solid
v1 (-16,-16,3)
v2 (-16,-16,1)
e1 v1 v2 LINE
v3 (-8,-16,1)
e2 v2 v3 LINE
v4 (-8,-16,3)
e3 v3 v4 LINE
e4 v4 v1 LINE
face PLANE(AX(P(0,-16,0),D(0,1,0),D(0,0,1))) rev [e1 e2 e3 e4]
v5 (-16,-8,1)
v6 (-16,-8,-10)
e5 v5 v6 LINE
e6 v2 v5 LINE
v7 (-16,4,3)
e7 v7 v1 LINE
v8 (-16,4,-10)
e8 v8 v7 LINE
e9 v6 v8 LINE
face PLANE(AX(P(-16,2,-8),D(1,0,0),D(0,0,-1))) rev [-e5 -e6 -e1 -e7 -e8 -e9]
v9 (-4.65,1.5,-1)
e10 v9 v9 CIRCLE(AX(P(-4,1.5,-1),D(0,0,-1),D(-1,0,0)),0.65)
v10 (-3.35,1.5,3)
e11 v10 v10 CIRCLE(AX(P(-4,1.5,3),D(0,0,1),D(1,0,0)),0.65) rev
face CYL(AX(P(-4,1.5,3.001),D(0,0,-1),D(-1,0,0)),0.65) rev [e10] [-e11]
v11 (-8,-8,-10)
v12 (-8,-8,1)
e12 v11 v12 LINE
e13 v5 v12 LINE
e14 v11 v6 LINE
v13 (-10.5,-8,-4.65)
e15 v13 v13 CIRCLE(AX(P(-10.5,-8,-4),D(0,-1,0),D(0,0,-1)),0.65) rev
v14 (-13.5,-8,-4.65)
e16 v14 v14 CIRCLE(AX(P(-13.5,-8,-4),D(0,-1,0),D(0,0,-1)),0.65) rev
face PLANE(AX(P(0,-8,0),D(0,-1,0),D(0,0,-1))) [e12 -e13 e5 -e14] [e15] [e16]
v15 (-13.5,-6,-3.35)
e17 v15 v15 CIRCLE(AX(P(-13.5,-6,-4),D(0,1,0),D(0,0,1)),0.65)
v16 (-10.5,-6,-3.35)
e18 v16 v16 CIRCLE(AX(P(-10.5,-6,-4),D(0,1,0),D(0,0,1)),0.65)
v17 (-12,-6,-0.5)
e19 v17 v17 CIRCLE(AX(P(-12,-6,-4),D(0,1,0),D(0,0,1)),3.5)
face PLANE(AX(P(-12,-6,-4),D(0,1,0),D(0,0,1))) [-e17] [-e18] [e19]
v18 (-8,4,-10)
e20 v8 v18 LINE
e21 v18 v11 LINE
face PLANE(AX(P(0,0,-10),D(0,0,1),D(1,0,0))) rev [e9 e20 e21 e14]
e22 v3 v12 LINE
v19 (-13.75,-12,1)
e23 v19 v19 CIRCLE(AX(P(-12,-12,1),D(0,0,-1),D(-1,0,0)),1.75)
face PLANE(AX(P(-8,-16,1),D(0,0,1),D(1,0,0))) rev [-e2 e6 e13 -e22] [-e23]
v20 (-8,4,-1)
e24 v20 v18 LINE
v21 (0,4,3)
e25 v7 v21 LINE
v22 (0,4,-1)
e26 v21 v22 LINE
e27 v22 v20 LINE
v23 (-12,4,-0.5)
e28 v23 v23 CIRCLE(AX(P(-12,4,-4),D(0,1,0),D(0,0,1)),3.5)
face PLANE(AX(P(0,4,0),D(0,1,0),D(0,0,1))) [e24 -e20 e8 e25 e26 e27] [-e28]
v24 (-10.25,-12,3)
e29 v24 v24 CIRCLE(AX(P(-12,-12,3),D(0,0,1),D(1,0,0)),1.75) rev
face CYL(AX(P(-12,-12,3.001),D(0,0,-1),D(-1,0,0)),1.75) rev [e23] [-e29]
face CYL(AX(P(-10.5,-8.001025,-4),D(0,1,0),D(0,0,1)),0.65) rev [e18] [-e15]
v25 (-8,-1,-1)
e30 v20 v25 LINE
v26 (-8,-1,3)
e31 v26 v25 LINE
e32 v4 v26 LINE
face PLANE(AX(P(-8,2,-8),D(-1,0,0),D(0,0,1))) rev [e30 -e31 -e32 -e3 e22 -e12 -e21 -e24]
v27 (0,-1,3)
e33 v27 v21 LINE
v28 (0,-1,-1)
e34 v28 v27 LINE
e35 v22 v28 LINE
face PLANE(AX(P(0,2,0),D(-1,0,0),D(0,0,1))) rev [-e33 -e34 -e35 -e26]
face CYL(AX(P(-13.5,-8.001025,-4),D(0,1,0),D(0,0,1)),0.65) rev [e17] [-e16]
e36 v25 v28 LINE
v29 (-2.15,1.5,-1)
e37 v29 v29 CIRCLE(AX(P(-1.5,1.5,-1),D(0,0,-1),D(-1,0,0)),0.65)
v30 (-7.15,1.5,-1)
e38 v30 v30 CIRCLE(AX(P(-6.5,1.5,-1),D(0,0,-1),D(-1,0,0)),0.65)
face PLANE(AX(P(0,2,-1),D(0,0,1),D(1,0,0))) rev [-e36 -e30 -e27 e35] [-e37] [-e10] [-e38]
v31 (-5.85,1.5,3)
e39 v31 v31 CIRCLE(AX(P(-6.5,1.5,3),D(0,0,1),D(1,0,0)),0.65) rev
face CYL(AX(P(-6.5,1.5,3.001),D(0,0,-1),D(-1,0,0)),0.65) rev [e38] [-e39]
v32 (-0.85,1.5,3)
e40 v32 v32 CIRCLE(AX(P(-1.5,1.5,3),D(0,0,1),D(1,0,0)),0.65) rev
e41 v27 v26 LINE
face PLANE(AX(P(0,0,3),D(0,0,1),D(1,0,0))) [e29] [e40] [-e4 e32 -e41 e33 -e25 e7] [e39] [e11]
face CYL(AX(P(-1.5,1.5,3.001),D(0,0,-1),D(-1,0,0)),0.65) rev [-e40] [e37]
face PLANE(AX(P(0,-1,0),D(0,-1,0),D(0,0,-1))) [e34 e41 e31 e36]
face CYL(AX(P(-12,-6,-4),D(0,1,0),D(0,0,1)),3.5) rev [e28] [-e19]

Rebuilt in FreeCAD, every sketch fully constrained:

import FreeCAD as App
import Part
import Sketcher

V = App.Vector

doc = App.newDocument("Part")
body = doc.addObject("PartDesign::Body", "Body")

# Sketch on XZ plane
sketch1 = doc.addObject("Sketcher::SketchObject", "Sketch")
body.addObject(sketch1)
sketch1.AttachmentSupport = (doc.XZ_Plane, [""])
sketch1.MapMode = "FlatFace"
sketch1.addGeometry([
    Part.LineSegment(V(-16, 0, 0), V(0, 0, 0)),  # 0
    Part.LineSegment(V(0, 0, 0), V(0, -1, 0)),  # 1
    Part.LineSegment(V(0, -1, 0), V(-8, -1, 0)),  # 2
    Part.LineSegment(V(-8, -1, 0), V(-8, -8, 0)),  # 3
    Part.LineSegment(V(-8, -8, 0), V(-16, -8, 0)),  # 4
    Part.LineSegment(V(-16, -8, 0), V(-16, 0, 0)),  # 5
], False)
sketch1.addConstraint([
    Sketcher.Constraint("Coincident", 0, 2, 1, 1),
    Sketcher.Constraint("Coincident", 1, 2, 2, 1),
    Sketcher.Constraint("Coincident", 2, 2, 3, 1),
    Sketcher.Constraint("Coincident", 3, 2, 4, 1),
    Sketcher.Constraint("Coincident", 4, 2, 5, 1),
    Sketcher.Constraint("Coincident", 5, 2, 0, 1),
    Sketcher.Constraint("Horizontal", 0),
    Sketcher.Constraint("Vertical", 1),
    Sketcher.Constraint("Horizontal", 2),
    Sketcher.Constraint("Vertical", 3),
    Sketcher.Constraint("Horizontal", 4),
    Sketcher.Constraint("Vertical", 5),
    Sketcher.Constraint("Coincident", 0, 2, -1, 1),
    Sketcher.Constraint("Equal", 2, 4),
    Sketcher.Constraint("Equal", 4, 5),
    Sketcher.Constraint("DistanceX", 0, 1, 0, 2, 16.0),
    Sketcher.Constraint("DistanceY", 1, 2, 1, 1, 1.0),
])
pad1 = doc.addObject("PartDesign::Pad", "Pad")
body.addObject(pad1)
pad1.Profile = sketch1
pad1.Length = 2
pad1.Reversed = True

# Sketch on XZ plane
sketch2 = doc.addObject("Sketcher::SketchObject", "Sketch001")
body.addObject(sketch2)
sketch2.AttachmentSupport = (doc.XZ_Plane, [""])
sketch2.MapMode = "FlatFace"
sketch2.AttachmentOffset = App.Placement(V(0, 0, -2), App.Rotation())
sketch2.addGeometry([
    Part.LineSegment(V(-16, -8, 0), V(-16, 0, 0)),
    Part.LineSegment(V(-16, 0, 0), V(-8, 0, 0)),
    Part.LineSegment(V(-8, 0, 0), V(-8, -8, 0)),
    Part.LineSegment(V(-8, -8, 0), V(-16, -8, 0)),
], False)
sketch2.addConstraint([
    Sketcher.Constraint("Coincident", 0, 2, 1, 1),
    Sketcher.Constraint("Coincident", 1, 2, 2, 1),
    Sketcher.Constraint("Coincident", 2, 2, 3, 1),
    Sketcher.Constraint("Coincident", 3, 2, 0, 1),
    Sketcher.Constraint("Vertical", 0),
    Sketcher.Constraint("Horizontal", 1),
    Sketcher.Constraint("Vertical", 2),
    Sketcher.Constraint("Horizontal", 3),
    Sketcher.Constraint("PointOnObject", 0, 2, -1),
    Sketcher.Constraint("Equal", 3, 0),
    Sketcher.Constraint("DistanceX", 1, 1, 1, 2, 8.0),
    Sketcher.Constraint("DistanceX", 0, 2, -1, 1, 16.0),
])
pad2 = doc.addObject("PartDesign::Pad", "Pad001")
body.addObject(pad2)
pad2.Profile = sketch2
pad2.Length = 2
pad2.Reversed = True

# Sketch on XZ plane
sketch3 = doc.addObject("Sketcher::SketchObject", "Sketch002")
body.addObject(sketch3)
sketch3.AttachmentSupport = (doc.XZ_Plane, [""])
sketch3.MapMode = "FlatFace"
sketch3.addGeometry([
    Part.LineSegment(V(-16, 0, 0), V(-16, -8, 0)),
    Part.LineSegment(V(-16, -8, 0), V(-8, -8, 0)),
    Part.LineSegment(V(-8, -8, 0), V(-8, 0, 0)),
    Part.LineSegment(V(-8, 0, 0), V(-16, 0, 0)),
], False)
sketch3.addConstraint([
    Sketcher.Constraint("Coincident", 0, 2, 1, 1),
    Sketcher.Constraint("Coincident", 1, 2, 2, 1),
    Sketcher.Constraint("Coincident", 2, 2, 3, 1),
    Sketcher.Constraint("Coincident", 3, 2, 0, 1),
    Sketcher.Constraint("Vertical", 0),
    Sketcher.Constraint("Horizontal", 1),
    Sketcher.Constraint("Vertical", 2),
    Sketcher.Constraint("Horizontal", 3),
    Sketcher.Constraint("PointOnObject", 2, 2, -1),
    Sketcher.Constraint("Equal", 3, 0),
    Sketcher.Constraint("DistanceX", 1, 1, 1, 2, 8.0),
    Sketcher.Constraint("DistanceX", 0, 2, -1, 1, 16.0),
])
pad3 = doc.addObject("PartDesign::Pad", "Pad002")
body.addObject(pad3)
pad3.Profile = sketch3
pad3.Length = 8

# Sketch on XZ plane
sketch4 = doc.addObject("Sketcher::SketchObject", "Sketch003")
body.addObject(sketch4)
sketch4.AttachmentSupport = (doc.XZ_Plane, [""])
sketch4.MapMode = "FlatFace"
sketch4.AttachmentOffset = App.Placement(V(0, 0, -4), App.Rotation())
sketch4.addGeometry(Part.Circle(V(-12, -4, 0), V(0, 0, 1), 3.5), False)
sketch4.addConstraint([
    Sketcher.Constraint("Diameter", 0, 7.0),
    Sketcher.Constraint("DistanceX", 0, 3, -1, 1, 12.0),
    Sketcher.Constraint("DistanceY", 0, 3, -1, 1, 4.0),
])
pocket1 = doc.addObject("PartDesign::Pocket", "Pocket")
body.addObject(pocket1)
pocket1.Profile = sketch4
pocket1.Length = 10
pocket1.Reversed = True

# Sketch on XZ plane
sketch5 = doc.addObject("Sketcher::SketchObject", "Sketch004")
body.addObject(sketch5)
sketch5.AttachmentSupport = (doc.XZ_Plane, [""])
sketch5.MapMode = "FlatFace"
sketch5.AttachmentOffset = App.Placement(V(0, 0, 6), App.Rotation())
sketch5.addGeometry(Part.Circle(V(-13.5, -4, 0), V(0, 0, 1), 0.65), False)
sketch5.addConstraint([
    Sketcher.Constraint("Diameter", 0, 1.3),
    Sketcher.Constraint("DistanceY", 0, 3, -1, 1, 4.0),
    Sketcher.Constraint("DistanceX", 0, 3, -1, 1, 13.5),
])
pocket2 = doc.addObject("PartDesign::Pocket", "Pocket001")
body.addObject(pocket2)
pocket2.Profile = sketch5
pocket2.Type = "UpToFirst"
pocket2.Reversed = True

# Sketch on XZ plane
sketch6 = doc.addObject("Sketcher::SketchObject", "Sketch005")
body.addObject(sketch6)
sketch6.AttachmentSupport = (doc.XZ_Plane, [""])
sketch6.MapMode = "FlatFace"
sketch6.AttachmentOffset = App.Placement(V(0, 0, 6), App.Rotation())
sketch6.addGeometry(Part.Circle(V(-10.5, -4, 0), V(0, 0, 1), 0.65), False)
sketch6.addConstraint([
    Sketcher.Constraint("Diameter", 0, 1.3),
    Sketcher.Constraint("DistanceY", 0, 3, -1, 1, 4.0),
    Sketcher.Constraint("DistanceX", 0, 3, -1, 1, 10.5),
])
pocket3 = doc.addObject("PartDesign::Pocket", "Pocket002")
body.addObject(pocket3)
pocket3.Profile = sketch6
pocket3.Type = "UpToFirst"
pocket3.Reversed = True

# Sketch on XY plane
sketch7 = doc.addObject("Sketcher::SketchObject", "Sketch006")
body.addObject(sketch7)
sketch7.AttachmentSupport = (doc.XY_Plane, [""])
sketch7.MapMode = "FlatFace"
sketch7.AttachmentOffset = App.Placement(V(0, 0, -1), App.Rotation())
sketch7.addGeometry(Part.Circle(V(-6.5, 1, 0), V(0, 0, 1), 0.65), False)
sketch7.addConstraint([
    Sketcher.Constraint("Diameter", 0, 1.3),
    Sketcher.Constraint("DistanceY", -1, 1, 0, 3, 1.0),
    Sketcher.Constraint("DistanceX", 0, 3, -1, 1, 6.5),
])
pocket4 = doc.addObject("PartDesign::Pocket", "Pocket003")
body.addObject(pocket4)
pocket4.Profile = sketch7
pocket4.Type = "UpToFirst"
pocket4.Reversed = True

# Sketch on XY plane
sketch8 = doc.addObject("Sketcher::SketchObject", "Sketch007")
body.addObject(sketch8)
sketch8.AttachmentSupport = (doc.XY_Plane, [""])
sketch8.MapMode = "FlatFace"
sketch8.AttachmentOffset = App.Placement(V(0, 0, -1), App.Rotation())
sketch8.addGeometry(Part.Circle(V(-4, 1, 0), V(0, 0, 1), 0.65), False)
sketch8.addConstraint([
    Sketcher.Constraint("Diameter", 0, 1.3),
    Sketcher.Constraint("DistanceX", 0, 3, -1, 1, 4.0),
    Sketcher.Constraint("DistanceY", -1, 1, 0, 3, 1.0),
])
pocket5 = doc.addObject("PartDesign::Pocket", "Pocket004")
body.addObject(pocket5)
pocket5.Profile = sketch8
pocket5.Type = "UpToFirst"
pocket5.Reversed = True

# Sketch on XY plane
sketch9 = doc.addObject("Sketcher::SketchObject", "Sketch008")
body.addObject(sketch9)
sketch9.AttachmentSupport = (doc.XY_Plane, [""])
sketch9.MapMode = "FlatFace"
sketch9.AttachmentOffset = App.Placement(V(0, 0, -1), App.Rotation())
sketch9.addGeometry(Part.Circle(V(-1.5, 1, 0), V(0, 0, 1), 0.65), False)
sketch9.addConstraint([
    Sketcher.Constraint("Diameter", 0, 1.3),
    Sketcher.Constraint("DistanceY", -1, 1, 0, 3, 1.0),
    Sketcher.Constraint("DistanceX", 0, 3, -1, 1, 1.5),
])
pocket6 = doc.addObject("PartDesign::Pocket", "Pocket005")
body.addObject(pocket6)
pocket6.Profile = sketch9
pocket6.Type = "UpToFirst"
pocket6.Reversed = True

# Sketch on XY plane
sketch10 = doc.addObject("Sketcher::SketchObject", "Sketch009")
body.addObject(sketch10)
sketch10.AttachmentSupport = (doc.XY_Plane, [""])
sketch10.MapMode = "FlatFace"
sketch10.addGeometry([
    Part.LineSegment(V(-16, 2, 0), V(-16, -8, 0)),  # 0
    Part.LineSegment(V(-16, -8, 0), V(-8, -8, 0)),  # 1
    Part.LineSegment(V(-8, -8, 0), V(-8, 0, 0)),  # 2
    Part.LineSegment(V(-8, 0, 0), V(0, 0, 0)),  # 3
    Part.LineSegment(V(0, 0, 0), V(0, 2, 0)),  # 4
    Part.LineSegment(V(0, 2, 0), V(-16, 2, 0)),  # 5
    Part.Circle(V(-6.5, 1, 0), V(0, 0, 1), 0.65),  # 6
    Part.Circle(V(-4, 1, 0), V(0, 0, 1), 0.65),  # 7
    Part.Circle(V(-1.5, 1, 0), V(0, 0, 1), 0.65),  # 8
], False)
sketch10.addConstraint([
    Sketcher.Constraint("Coincident", 0, 2, 1, 1),
    Sketcher.Constraint("Coincident", 1, 2, 2, 1),
    Sketcher.Constraint("Coincident", 2, 2, 3, 1),
    Sketcher.Constraint("Coincident", 3, 2, 4, 1),
    Sketcher.Constraint("Coincident", 4, 2, 5, 1),
    Sketcher.Constraint("Coincident", 5, 2, 0, 1),
    Sketcher.Constraint("Vertical", 0),
    Sketcher.Constraint("Horizontal", 1),
    Sketcher.Constraint("Vertical", 2),
    Sketcher.Constraint("Horizontal", 3),
    Sketcher.Constraint("Vertical", 4),
    Sketcher.Constraint("Horizontal", 5),
    Sketcher.Constraint("Coincident", 3, 2, -1, 1),
    Sketcher.Constraint("Equal", 6, 7),
    Sketcher.Constraint("Equal", 7, 8),
    Sketcher.Constraint("Horizontal", 6, 3, 7, 3),
    Sketcher.Constraint("Horizontal", 7, 3, 8, 3),
    Sketcher.Constraint("Equal", 1, 3),
    Sketcher.Constraint("Equal", 3, 2),
    Sketcher.Constraint("Diameter", 6, 1.3),
    Sketcher.Constraint("DistanceX", 1, 1, 1, 2, 8.0),
    Sketcher.Constraint("DistanceY", 0, 2, 0, 1, 10.0),
    Sketcher.Constraint("DistanceY", -1, 1, 6, 3, 1.0),
    Sketcher.Constraint("DistanceX", 7, 3, -1, 1, 4.0),
    Sketcher.Constraint("DistanceX", 6, 3, 8, 3, 5.0),
    Sketcher.Constraint("DistanceX", 6, 3, -1, 1, 6.5),
])
pad4 = doc.addObject("PartDesign::Pad", "Pad003")
body.addObject(pad4)
pad4.Profile = sketch10
pad4.Length = 3

# Sketch on XZ plane
sketch11 = doc.addObject("Sketcher::SketchObject", "Sketch010")
body.addObject(sketch11)
sketch11.AttachmentSupport = (doc.XZ_Plane, [""])
sketch11.MapMode = "FlatFace"
sketch11.AttachmentOffset = App.Placement(V(0, 0, 8), App.Rotation())
sketch11.addGeometry([
    Part.LineSegment(V(-16, 3, 0), V(-16, 1, 0)),
    Part.LineSegment(V(-16, 1, 0), V(-8, 1, 0)),
    Part.LineSegment(V(-8, 1, 0), V(-8, 3, 0)),
    Part.LineSegment(V(-8, 3, 0), V(-16, 3, 0)),
], False)
sketch11.addConstraint([
    Sketcher.Constraint("Coincident", 0, 2, 1, 1),
    Sketcher.Constraint("Coincident", 1, 2, 2, 1),
    Sketcher.Constraint("Coincident", 2, 2, 3, 1),
    Sketcher.Constraint("Coincident", 3, 2, 0, 1),
    Sketcher.Constraint("Vertical", 0),
    Sketcher.Constraint("Horizontal", 1),
    Sketcher.Constraint("Vertical", 2),
    Sketcher.Constraint("Horizontal", 3),
    Sketcher.Constraint("DistanceX", 1, 1, 1, 2, 8.0),
    Sketcher.Constraint("DistanceY", 0, 2, 0, 1, 2.0),
    Sketcher.Constraint("DistanceX", 0, 2, -1, 1, 16.0),
    Sketcher.Constraint("DistanceY", -1, 1, 0, 2, 1.0),
])
pad5 = doc.addObject("PartDesign::Pad", "Pad004")
body.addObject(pad5)
pad5.Profile = sketch11
pad5.Length = 8

# Sketch on XY plane
sketch12 = doc.addObject("Sketcher::SketchObject", "Sketch011")
body.addObject(sketch12)
sketch12.AttachmentSupport = (doc.XY_Plane, [""])
sketch12.MapMode = "FlatFace"
sketch12.AttachmentOffset = App.Placement(V(0, 0, 1), App.Rotation())
sketch12.addGeometry(Part.Circle(V(-12, -12, 0), V(0, 0, 1), 1), False)
sketch12.addConstraint([
    Sketcher.Constraint("Diameter", 0, 2.0),
    Sketcher.Constraint("DistanceX", 0, 3, -1, 1, 12.0),
    Sketcher.Constraint("DistanceY", 0, 3, -1, 1, 12.0),
])
pocket7 = doc.addObject("PartDesign::Pocket", "Pocket006")
body.addObject(pocket7)
pocket7.Profile = sketch12
pocket7.Length = 8
pocket7.Reversed = True

# Sketch on XY plane
sketch13 = doc.addObject("Sketcher::SketchObject", "Sketch012")
body.addObject(sketch13)
sketch13.AttachmentSupport = (doc.XY_Plane, [""])
sketch13.MapMode = "FlatFace"
sketch13.AttachmentOffset = App.Placement(V(0, 0, -8), App.Rotation())
sketch13.addGeometry([
    Part.LineSegment(V(-8, 4, 0), V(-8, -8, 0)),
    Part.LineSegment(V(-8, -8, 0), V(-16, -8, 0)),
    Part.LineSegment(V(-16, -8, 0), V(-16, 4, 0)),
    Part.LineSegment(V(-16, 4, 0), V(-8, 4, 0)),
], False)
sketch13.addConstraint([
    Sketcher.Constraint("Coincident", 0, 2, 1, 1),
    Sketcher.Constraint("Coincident", 1, 2, 2, 1),
    Sketcher.Constraint("Coincident", 2, 2, 3, 1),
    Sketcher.Constraint("Coincident", 3, 2, 0, 1),
    Sketcher.Constraint("Vertical", 0),
    Sketcher.Constraint("Horizontal", 1),
    Sketcher.Constraint("Vertical", 2),
    Sketcher.Constraint("Horizontal", 3),
    Sketcher.Constraint("DistanceX", 1, 2, 1, 1, 8.0),
    Sketcher.Constraint("DistanceY", 0, 2, 0, 1, 12.0),
    Sketcher.Constraint("DistanceX", 0, 2, -1, 1, 8.0),
    Sketcher.Constraint("DistanceY", 0, 2, -1, 1, 8.0),
])
pad6 = doc.addObject("PartDesign::Pad", "Pad005")
body.addObject(pad6)
pad6.Profile = sketch13
pad6.Length = 2
pad6.Reversed = True

# Sketch on XZ plane
sketch14 = doc.addObject("Sketcher::SketchObject", "Sketch013")
body.addObject(sketch14)
sketch14.AttachmentSupport = (doc.XZ_Plane, [""])
sketch14.MapMode = "FlatFace"
sketch14.addGeometry([
    Part.LineSegment(V(-8, 3, 0), V(-8, -1, 0)),
    Part.LineSegment(V(-8, -1, 0), V(0, -1, 0)),
    Part.LineSegment(V(0, -1, 0), V(0, 3, 0)),
    Part.LineSegment(V(0, 3, 0), V(-8, 3, 0)),
], False)
sketch14.addConstraint([
    Sketcher.Constraint("Coincident", 0, 2, 1, 1),
    Sketcher.Constraint("Coincident", 1, 2, 2, 1),
    Sketcher.Constraint("Coincident", 2, 2, 3, 1),
    Sketcher.Constraint("Coincident", 3, 2, 0, 1),
    Sketcher.Constraint("Vertical", 0),
    Sketcher.Constraint("Horizontal", 1),
    Sketcher.Constraint("Vertical", 2),
    Sketcher.Constraint("Horizontal", 3),
    Sketcher.Constraint("PointOnObject", 1, 2, -2),
    Sketcher.Constraint("DistanceX", 1, 1, 1, 2, 8.0),
    Sketcher.Constraint("DistanceY", 0, 2, 0, 1, 4.0),
    Sketcher.Constraint("DistanceY", 0, 2, -1, 1, 1.0),
])
pad7 = doc.addObject("PartDesign::Pad", "Pad006")
body.addObject(pad7)
pad7.Profile = sketch14
pad7.Length = 1

# Sketch on XZ plane
sketch15 = doc.addObject("Sketcher::SketchObject", "Sketch014")
body.addObject(sketch15)
sketch15.AttachmentSupport = (doc.XZ_Plane, [""])
sketch15.MapMode = "FlatFace"
sketch15.AttachmentOffset = App.Placement(V(0, 0, -2), App.Rotation())
sketch15.addGeometry([
    Part.LineSegment(V(-8, -1, 0), V(-8, 0, 0)),  # 0
    Part.LineSegment(V(-8, 0, 0), V(-16, 0, 0)),  # 1
    Part.LineSegment(V(-16, 0, 0), V(-16, 3, 0)),  # 2
    Part.LineSegment(V(-16, 3, 0), V(0, 3, 0)),  # 3
    Part.LineSegment(V(0, 3, 0), V(0, -1, 0)),  # 4
    Part.LineSegment(V(0, -1, 0), V(-8, -1, 0)),  # 5
], False)
sketch15.addConstraint([
    Sketcher.Constraint("Coincident", 0, 2, 1, 1),
    Sketcher.Constraint("Coincident", 1, 2, 2, 1),
    Sketcher.Constraint("Coincident", 2, 2, 3, 1),
    Sketcher.Constraint("Coincident", 3, 2, 4, 1),
    Sketcher.Constraint("Coincident", 4, 2, 5, 1),
    Sketcher.Constraint("Coincident", 5, 2, 0, 1),
    Sketcher.Constraint("Vertical", 0),
    Sketcher.Constraint("Horizontal", 1),
    Sketcher.Constraint("Vertical", 2),
    Sketcher.Constraint("Horizontal", 3),
    Sketcher.Constraint("Vertical", 4),
    Sketcher.Constraint("Horizontal", 5),
    Sketcher.Constraint("PointOnObject", 0, 2, -1),
    Sketcher.Constraint("PointOnObject", 3, 2, -2),
    Sketcher.Constraint("Equal", 1, 5),
    Sketcher.Constraint("DistanceX", 1, 2, 1, 1, 8.0),
    Sketcher.Constraint("DistanceY", 0, 1, 0, 2, 1.0),
    Sketcher.Constraint("DistanceY", 2, 1, 2, 2, 3.0),
])
pad8 = doc.addObject("PartDesign::Pad", "Pad007")
body.addObject(pad8)
pad8.Profile = sketch15
pad8.Length = 2
pad8.Reversed = True

# Sketch on XY plane
sketch16 = doc.addObject("Sketcher::SketchObject", "Sketch015")
body.addObject(sketch16)
sketch16.AttachmentSupport = (doc.XY_Plane, [""])
sketch16.MapMode = "FlatFace"
sketch16.AttachmentOffset = App.Placement(V(0, 0, -1), App.Rotation())
sketch16.addGeometry([
    Part.Circle(V(-1.5, 1, 0), V(0, 0, 1), 0.65),
    Part.Circle(V(-4, 1, 0), V(0, 0, 1), 0.65),
    Part.Circle(V(-6.5, 1, 0), V(0, 0, 1), 0.65),
], False)
sketch16.addConstraint([
    Sketcher.Constraint("Equal", 0, 1),
    Sketcher.Constraint("Equal", 1, 2),
    Sketcher.Constraint("Horizontal", 0, 3, 1, 3),
    Sketcher.Constraint("Horizontal", 1, 3, 2, 3),
    Sketcher.Constraint("Diameter", 0, 1.3),
    Sketcher.Constraint("DistanceY", -1, 1, 0, 3, 1.0),
    Sketcher.Constraint("DistanceX", 1, 3, -1, 1, 4.0),
    Sketcher.Constraint("DistanceX", 2, 3, 0, 3, 5.0),
    Sketcher.Constraint("DistanceX", 0, 3, -1, 1, 1.5),
])
pad9 = doc.addObject("PartDesign::Pad", "Pad008")
body.addObject(pad9)
pad9.Profile = sketch16
pad9.Length = 4

# Sketch on XY plane
sketch17 = doc.addObject("Sketcher::SketchObject", "Sketch016")
body.addObject(sketch17)
sketch17.AttachmentSupport = (doc.XY_Plane, [""])
sketch17.MapMode = "FlatFace"
sketch17.AttachmentOffset = App.Placement(V(0, 0, -1), App.Rotation())
sketch17.addGeometry(Part.Circle(V(-1.5, 1.5, 0), V(0, 0, 1), 0.65), False)
sketch17.addConstraint([
    Sketcher.Constraint("Diameter", 0, 1.3),
    Sketcher.Constraint("DistanceX", 0, 3, -1, 1, 1.5),
    Sketcher.Constraint("DistanceY", -1, 1, 0, 3, 1.5),
])
pocket8 = doc.addObject("PartDesign::Pocket", "Pocket007")
body.addObject(pocket8)
pocket8.Profile = sketch17
pocket8.Type = "UpToFirst"
pocket8.Reversed = True

# Sketch on XY plane
sketch18 = doc.addObject("Sketcher::SketchObject", "Sketch017")
body.addObject(sketch18)
sketch18.AttachmentSupport = (doc.XY_Plane, [""])
sketch18.MapMode = "FlatFace"
sketch18.AttachmentOffset = App.Placement(V(0, 0, -1), App.Rotation())
sketch18.addGeometry(Part.Circle(V(-4, 1.5, 0), V(0, 0, 1), 0.65), False)
sketch18.addConstraint([
    Sketcher.Constraint("Diameter", 0, 1.3),
    Sketcher.Constraint("DistanceX", 0, 3, -1, 1, 4.0),
    Sketcher.Constraint("DistanceY", -1, 1, 0, 3, 1.5),
])
pocket9 = doc.addObject("PartDesign::Pocket", "Pocket008")
body.addObject(pocket9)
pocket9.Profile = sketch18
pocket9.Type = "UpToFirst"
pocket9.Reversed = True

# Sketch on XY plane
sketch19 = doc.addObject("Sketcher::SketchObject", "Sketch018")
body.addObject(sketch19)
sketch19.AttachmentSupport = (doc.XY_Plane, [""])
sketch19.MapMode = "FlatFace"
sketch19.AttachmentOffset = App.Placement(V(0, 0, -1), App.Rotation())
sketch19.addGeometry(Part.Circle(V(-6.5, 1.5, 0), V(0, 0, 1), 0.65), False)
sketch19.addConstraint([
    Sketcher.Constraint("Diameter", 0, 1.3),
    Sketcher.Constraint("DistanceX", 0, 3, -1, 1, 6.5),
    Sketcher.Constraint("DistanceY", -1, 1, 0, 3, 1.5),
])
pocket10 = doc.addObject("PartDesign::Pocket", "Pocket009")
body.addObject(pocket10)
pocket10.Profile = sketch19
pocket10.Type = "UpToFirst"
pocket10.Reversed = True

# Sketch on XY plane
sketch20 = doc.addObject("Sketcher::SketchObject", "Sketch019")
body.addObject(sketch20)
sketch20.AttachmentSupport = (doc.XY_Plane, [""])
sketch20.MapMode = "FlatFace"
sketch20.AttachmentOffset = App.Placement(V(0, 0, 1), App.Rotation())
sketch20.addGeometry(Part.Circle(V(-12, -12, 0), V(0, 0, 1), 1.75), False)
sketch20.addConstraint([
    Sketcher.Constraint("Diameter", 0, 3.5),
    Sketcher.Constraint("DistanceX", 0, 3, -1, 1, 12.0),
    Sketcher.Constraint("DistanceY", 0, 3, -1, 1, 12.0),
])
pocket11 = doc.addObject("PartDesign::Pocket", "Pocket010")
body.addObject(pocket11)
pocket11.Profile = sketch20
pocket11.Length = 2
pocket11.Reversed = True

doc.recompute()
